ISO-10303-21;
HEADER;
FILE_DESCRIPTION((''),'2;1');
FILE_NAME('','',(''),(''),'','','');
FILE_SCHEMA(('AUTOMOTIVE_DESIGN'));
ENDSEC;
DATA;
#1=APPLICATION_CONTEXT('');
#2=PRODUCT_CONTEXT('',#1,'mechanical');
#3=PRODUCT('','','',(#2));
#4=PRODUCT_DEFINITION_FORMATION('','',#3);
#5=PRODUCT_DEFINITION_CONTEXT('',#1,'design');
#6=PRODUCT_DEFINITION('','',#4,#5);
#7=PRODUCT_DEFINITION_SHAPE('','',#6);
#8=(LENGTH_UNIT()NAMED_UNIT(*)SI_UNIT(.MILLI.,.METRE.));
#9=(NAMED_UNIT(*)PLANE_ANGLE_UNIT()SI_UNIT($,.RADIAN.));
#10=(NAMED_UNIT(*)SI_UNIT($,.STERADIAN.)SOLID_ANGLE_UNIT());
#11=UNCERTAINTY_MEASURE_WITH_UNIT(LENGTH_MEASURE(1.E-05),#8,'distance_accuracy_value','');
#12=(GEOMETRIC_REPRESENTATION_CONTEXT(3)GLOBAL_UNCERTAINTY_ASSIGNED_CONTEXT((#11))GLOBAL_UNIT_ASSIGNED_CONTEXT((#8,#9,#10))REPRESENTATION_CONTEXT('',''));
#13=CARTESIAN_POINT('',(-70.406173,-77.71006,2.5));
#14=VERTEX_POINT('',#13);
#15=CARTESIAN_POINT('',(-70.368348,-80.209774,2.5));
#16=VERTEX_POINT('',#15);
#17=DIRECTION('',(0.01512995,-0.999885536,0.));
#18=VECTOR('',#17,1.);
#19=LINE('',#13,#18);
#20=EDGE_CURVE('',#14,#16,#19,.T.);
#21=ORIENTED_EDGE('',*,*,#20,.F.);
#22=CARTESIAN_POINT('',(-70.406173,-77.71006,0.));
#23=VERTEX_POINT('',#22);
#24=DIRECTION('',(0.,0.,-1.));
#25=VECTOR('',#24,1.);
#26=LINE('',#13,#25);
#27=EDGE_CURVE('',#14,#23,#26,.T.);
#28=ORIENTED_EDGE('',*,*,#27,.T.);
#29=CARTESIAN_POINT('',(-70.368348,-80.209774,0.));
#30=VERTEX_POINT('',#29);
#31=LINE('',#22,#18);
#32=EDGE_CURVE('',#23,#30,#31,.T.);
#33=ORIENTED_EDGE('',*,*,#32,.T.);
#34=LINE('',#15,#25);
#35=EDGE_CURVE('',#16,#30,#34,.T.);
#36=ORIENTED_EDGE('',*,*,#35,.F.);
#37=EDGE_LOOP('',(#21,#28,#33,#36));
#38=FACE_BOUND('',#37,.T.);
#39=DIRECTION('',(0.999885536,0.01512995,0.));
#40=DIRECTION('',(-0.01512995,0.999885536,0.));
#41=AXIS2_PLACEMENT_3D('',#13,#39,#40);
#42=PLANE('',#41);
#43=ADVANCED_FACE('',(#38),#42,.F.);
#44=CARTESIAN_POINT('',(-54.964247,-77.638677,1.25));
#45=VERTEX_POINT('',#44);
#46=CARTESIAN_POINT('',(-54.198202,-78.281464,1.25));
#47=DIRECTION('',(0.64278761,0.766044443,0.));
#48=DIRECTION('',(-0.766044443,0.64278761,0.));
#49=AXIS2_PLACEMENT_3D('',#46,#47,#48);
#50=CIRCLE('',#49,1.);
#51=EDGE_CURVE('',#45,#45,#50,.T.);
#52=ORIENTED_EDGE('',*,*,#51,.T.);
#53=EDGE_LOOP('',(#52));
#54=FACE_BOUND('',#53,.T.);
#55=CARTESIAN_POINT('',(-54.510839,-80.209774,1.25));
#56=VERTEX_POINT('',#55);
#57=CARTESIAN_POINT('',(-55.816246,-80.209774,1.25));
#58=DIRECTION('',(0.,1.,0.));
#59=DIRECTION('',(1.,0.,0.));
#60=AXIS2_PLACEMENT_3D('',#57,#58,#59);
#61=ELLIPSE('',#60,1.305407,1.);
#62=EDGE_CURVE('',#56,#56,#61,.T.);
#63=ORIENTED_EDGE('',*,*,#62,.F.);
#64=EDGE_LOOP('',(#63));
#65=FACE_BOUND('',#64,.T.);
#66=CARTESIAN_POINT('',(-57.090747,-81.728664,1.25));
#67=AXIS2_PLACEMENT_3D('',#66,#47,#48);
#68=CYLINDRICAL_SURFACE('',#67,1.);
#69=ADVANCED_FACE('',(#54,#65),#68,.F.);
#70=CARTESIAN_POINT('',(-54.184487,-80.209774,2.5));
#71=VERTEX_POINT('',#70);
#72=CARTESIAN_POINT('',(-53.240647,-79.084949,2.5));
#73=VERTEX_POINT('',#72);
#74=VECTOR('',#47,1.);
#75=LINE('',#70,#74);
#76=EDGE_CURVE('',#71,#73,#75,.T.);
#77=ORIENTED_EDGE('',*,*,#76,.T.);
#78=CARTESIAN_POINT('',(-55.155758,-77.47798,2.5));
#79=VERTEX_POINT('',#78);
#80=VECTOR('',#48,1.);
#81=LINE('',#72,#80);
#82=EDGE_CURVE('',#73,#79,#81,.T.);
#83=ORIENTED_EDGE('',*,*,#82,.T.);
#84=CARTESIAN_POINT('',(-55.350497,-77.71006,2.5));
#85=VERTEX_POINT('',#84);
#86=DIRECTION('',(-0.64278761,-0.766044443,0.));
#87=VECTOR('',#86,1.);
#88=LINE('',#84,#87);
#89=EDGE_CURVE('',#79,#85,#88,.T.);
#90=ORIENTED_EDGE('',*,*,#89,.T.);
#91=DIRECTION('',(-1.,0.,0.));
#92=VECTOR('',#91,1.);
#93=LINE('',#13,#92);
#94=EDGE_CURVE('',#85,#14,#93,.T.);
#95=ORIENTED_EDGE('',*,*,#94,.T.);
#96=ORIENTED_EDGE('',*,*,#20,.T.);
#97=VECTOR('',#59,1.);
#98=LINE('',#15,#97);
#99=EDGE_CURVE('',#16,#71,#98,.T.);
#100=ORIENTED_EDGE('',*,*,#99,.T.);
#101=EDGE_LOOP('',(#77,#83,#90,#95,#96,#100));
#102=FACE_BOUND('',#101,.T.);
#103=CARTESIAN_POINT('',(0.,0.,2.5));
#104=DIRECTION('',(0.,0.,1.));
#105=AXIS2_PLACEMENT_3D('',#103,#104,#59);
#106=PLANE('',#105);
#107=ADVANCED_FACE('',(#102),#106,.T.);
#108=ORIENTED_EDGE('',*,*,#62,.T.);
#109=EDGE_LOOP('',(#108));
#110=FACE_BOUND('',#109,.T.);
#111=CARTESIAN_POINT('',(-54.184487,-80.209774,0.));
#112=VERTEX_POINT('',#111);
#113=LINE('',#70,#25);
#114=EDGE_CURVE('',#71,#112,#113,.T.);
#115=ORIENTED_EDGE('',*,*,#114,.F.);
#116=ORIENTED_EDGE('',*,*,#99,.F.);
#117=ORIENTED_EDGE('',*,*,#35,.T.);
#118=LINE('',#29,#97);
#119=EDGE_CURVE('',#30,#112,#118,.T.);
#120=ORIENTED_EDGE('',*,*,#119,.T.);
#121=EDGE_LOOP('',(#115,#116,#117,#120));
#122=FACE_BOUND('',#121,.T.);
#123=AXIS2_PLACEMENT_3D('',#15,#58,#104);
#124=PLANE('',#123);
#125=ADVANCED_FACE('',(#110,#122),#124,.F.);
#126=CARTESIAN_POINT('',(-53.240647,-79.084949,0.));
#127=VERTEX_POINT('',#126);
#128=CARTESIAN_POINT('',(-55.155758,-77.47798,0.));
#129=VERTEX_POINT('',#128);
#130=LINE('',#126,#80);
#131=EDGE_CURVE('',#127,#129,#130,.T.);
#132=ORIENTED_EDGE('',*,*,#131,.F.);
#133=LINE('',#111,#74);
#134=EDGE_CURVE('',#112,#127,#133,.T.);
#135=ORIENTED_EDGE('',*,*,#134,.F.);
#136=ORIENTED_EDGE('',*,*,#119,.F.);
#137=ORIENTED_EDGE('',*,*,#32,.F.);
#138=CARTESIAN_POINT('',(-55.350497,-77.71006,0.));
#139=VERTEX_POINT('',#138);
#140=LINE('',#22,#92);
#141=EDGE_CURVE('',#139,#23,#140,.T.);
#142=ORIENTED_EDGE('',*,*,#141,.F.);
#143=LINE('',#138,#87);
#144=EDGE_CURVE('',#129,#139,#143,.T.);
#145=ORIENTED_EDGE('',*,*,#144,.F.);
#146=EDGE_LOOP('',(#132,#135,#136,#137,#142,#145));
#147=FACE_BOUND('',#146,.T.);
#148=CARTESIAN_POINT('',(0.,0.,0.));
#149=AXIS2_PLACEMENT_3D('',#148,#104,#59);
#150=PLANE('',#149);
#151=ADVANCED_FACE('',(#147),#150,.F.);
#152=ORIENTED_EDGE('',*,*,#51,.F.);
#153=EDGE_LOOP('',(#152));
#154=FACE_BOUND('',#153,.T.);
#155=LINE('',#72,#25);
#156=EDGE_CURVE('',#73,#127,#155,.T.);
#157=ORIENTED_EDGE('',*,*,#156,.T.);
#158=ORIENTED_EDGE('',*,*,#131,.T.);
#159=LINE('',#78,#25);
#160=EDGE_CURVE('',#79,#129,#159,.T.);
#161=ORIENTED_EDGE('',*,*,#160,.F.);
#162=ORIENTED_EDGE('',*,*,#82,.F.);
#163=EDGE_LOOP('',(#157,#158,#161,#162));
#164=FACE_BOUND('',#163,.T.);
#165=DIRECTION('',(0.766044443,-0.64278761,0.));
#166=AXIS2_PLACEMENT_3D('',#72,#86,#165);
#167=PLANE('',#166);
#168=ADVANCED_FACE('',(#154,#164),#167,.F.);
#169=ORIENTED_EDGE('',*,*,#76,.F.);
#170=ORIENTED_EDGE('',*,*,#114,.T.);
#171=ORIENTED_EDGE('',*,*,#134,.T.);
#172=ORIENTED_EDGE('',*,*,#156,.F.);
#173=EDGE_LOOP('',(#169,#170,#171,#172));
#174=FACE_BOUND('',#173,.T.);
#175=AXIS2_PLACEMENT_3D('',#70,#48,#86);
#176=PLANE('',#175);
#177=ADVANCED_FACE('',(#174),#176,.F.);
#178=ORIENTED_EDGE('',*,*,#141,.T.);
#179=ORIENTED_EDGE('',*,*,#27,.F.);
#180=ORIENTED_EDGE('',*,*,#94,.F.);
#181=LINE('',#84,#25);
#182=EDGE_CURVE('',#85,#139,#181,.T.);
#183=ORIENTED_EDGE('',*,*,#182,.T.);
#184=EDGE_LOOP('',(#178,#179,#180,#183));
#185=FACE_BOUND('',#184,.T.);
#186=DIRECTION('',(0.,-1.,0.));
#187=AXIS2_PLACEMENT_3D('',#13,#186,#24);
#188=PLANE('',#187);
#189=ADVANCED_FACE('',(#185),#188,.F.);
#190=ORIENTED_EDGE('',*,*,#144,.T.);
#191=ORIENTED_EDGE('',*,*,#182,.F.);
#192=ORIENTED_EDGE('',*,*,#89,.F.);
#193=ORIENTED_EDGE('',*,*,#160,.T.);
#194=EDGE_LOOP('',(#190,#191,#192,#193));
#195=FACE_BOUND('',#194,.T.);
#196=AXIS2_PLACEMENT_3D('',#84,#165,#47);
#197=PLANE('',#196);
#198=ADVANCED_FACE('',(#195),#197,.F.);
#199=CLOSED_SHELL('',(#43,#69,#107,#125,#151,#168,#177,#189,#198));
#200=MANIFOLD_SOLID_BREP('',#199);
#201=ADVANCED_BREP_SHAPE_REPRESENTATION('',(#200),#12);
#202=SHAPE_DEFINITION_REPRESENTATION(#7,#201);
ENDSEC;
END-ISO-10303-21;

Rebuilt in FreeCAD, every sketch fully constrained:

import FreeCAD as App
import Part
import Sketcher
from FreeCAD import Vector


def add_polygon(sketch, points):
    """Adds a closed chain of lines whose ends are joined by coincident constraints."""
    first, n = sketch.GeometryCount, len(points)
    for a, b in zip(points, points[1:] + points[:1]):
        sketch.addGeometry(Part.LineSegment(App.Vector(*a, 0), App.Vector(*b, 0)), False)
    for i in range(n):
        sketch.addConstraint(Sketcher.Constraint("Coincident", first + i, 2, first + (i + 1) % n, 1))

doc = App.newDocument("Part")
body = doc.addObject("PartDesign::Body", "Body")

# Sketch on XY plane
sketch1 = body.newObject("Sketcher::SketchObject", "Sketch")
sketch1.AttachmentSupport = (doc.getObject("XY_Plane"), [""])
sketch1.MapMode = "FlatFace"
add_polygon(sketch1, [(-55.350497, -77.71006), (-70.406173, -77.71006), (-70.368348, -80.209774), (-54.184487, -80.209774), (-53.240647, -79.084949), (-55.155758, -77.47798)])  # lines 0-5
sketch1.addConstraint(Sketcher.Constraint("Horizontal", 0))
sketch1.addConstraint(Sketcher.Constraint("Horizontal", 2))
sketch1.addConstraint(Sketcher.Constraint("Distance", 1, 2.5))
sketch1.addConstraint(Sketcher.Constraint("Distance", 4, 2.5))
sketch1.addConstraint(Sketcher.Constraint("DistanceX", 2, 1, 2, 2, 16.18386))
sketch1.addConstraint(Sketcher.Constraint("DistanceX", 1, 2, 3, 2, 17.127701))
sketch1.addConstraint(Sketcher.Constraint("Distance", 5, 0.302959))
sketch1.addConstraint(Sketcher.Constraint("DistanceX", 0, 2, 0, 1, 15.055676))
sketch1.addConstraint(Sketcher.Constraint("DistanceY", 0, 2, -1, 1, 77.71006))
sketch1.addConstraint(Sketcher.Constraint("DistanceY", 3, 2, -1, 1, 79.084949))
sketch1.addConstraint(Sketcher.Constraint("DistanceX", 4, 2, -1, 1, 55.155758))
sketch1.addConstraint(Sketcher.Constraint("DistanceY", 4, 2, -1, 1, 77.47798))
pad1 = body.newObject("PartDesign::Pad", "Pad")
pad1.Profile = sketch1
pad1.Length = 2.5

# Sketch on an angled plane
sketch2 = body.newObject("Sketcher::SketchObject", "Sketch001")
sketch2.Placement = App.Placement(Vector(-60.939488, -72.624854, 0), App.Rotation(Vector(0, 0, -1), Vector(-0.766044443, 0.64278761, 0), Vector(0.64278761, 0.766044443, 0), "ZXY"))
sketch2.addGeometry(Part.Circle(Vector(-1.2, -8.8, 0), Vector(0, 0, 1), 1), False)
sketch2.addConstraint(Sketcher.Constraint("Diameter", 0, 2.0))
sketch2.addConstraint(Sketcher.Constraint("DistanceX", 0, 3, -1, 1, 1.25))
sketch2.addConstraint(Sketcher.Constraint("DistanceY", 0, 3, -1, 1, 8.800123))
pocket1 = body.newObject("PartDesign::Pocket", "Pocket")
pocket1.Profile = sketch2
pocket1.Length = 4.5

# Sketch on an angled plane
sketch3 = body.newObject("Sketcher::SketchObject", "Sketch002")
sketch3.Placement = App.Placement(Vector(-71.56567, -1.082909, 0), App.Rotation(Vector(0, 0, 1), Vector(-0.01512995, 0.999885536, 0), Vector(-0.999885536, -0.01512995, 0), "ZXY"))
sketch3.addGeometry(Part.Circle(Vector(1.2, -77.9, 0), Vector(0, 0, 1), 1), False)
sketch3.addConstraint(Sketcher.Constraint("Diameter", 0, 2.0))
sketch3.addConstraint(Sketcher.Constraint("DistanceX", -1, 1, 0, 3, 1.25))
sketch3.addConstraint(Sketcher.Constraint("DistanceY", 0, 3, -1, 1, 77.885923))
pocket2 = body.newObject("PartDesign::Pocket", "Pocket001")
pocket2.Profile = sketch3
pocket2.Length = 9.5

# Sketch on an angled plane
sketch4 = body.newObject("Sketcher::SketchObject", "Sketch003")
sketch4.Placement = App.Placement(Vector(-71.56567, -1.082909, 0), App.Rotation(Vector(0, 0, 1), Vector(-0.01512995, 0.999885536, 0), Vector(-0.999885536, -0.01512995, 0), "ZXY"))
sketch4.addGeometry(Part.Circle(Vector(1.2, -77.9, 0), Vector(0, 0, 1), 1), False)
sketch4.addConstraint(Sketcher.Constraint("Diameter", 0, 2.0))
sketch4.addConstraint(Sketcher.Constraint("DistanceX", -1, 1, 0, 3, 1.25))
sketch4.addConstraint(Sketcher.Constraint("DistanceY", 0, 3, -1, 1, 77.885923))
pad2 = body.newObject("PartDesign::Pad", "Pad001")
pad2.Profile = sketch4
pad2.Length = 9.5
pad2.Reversed = True

doc.recompute()
